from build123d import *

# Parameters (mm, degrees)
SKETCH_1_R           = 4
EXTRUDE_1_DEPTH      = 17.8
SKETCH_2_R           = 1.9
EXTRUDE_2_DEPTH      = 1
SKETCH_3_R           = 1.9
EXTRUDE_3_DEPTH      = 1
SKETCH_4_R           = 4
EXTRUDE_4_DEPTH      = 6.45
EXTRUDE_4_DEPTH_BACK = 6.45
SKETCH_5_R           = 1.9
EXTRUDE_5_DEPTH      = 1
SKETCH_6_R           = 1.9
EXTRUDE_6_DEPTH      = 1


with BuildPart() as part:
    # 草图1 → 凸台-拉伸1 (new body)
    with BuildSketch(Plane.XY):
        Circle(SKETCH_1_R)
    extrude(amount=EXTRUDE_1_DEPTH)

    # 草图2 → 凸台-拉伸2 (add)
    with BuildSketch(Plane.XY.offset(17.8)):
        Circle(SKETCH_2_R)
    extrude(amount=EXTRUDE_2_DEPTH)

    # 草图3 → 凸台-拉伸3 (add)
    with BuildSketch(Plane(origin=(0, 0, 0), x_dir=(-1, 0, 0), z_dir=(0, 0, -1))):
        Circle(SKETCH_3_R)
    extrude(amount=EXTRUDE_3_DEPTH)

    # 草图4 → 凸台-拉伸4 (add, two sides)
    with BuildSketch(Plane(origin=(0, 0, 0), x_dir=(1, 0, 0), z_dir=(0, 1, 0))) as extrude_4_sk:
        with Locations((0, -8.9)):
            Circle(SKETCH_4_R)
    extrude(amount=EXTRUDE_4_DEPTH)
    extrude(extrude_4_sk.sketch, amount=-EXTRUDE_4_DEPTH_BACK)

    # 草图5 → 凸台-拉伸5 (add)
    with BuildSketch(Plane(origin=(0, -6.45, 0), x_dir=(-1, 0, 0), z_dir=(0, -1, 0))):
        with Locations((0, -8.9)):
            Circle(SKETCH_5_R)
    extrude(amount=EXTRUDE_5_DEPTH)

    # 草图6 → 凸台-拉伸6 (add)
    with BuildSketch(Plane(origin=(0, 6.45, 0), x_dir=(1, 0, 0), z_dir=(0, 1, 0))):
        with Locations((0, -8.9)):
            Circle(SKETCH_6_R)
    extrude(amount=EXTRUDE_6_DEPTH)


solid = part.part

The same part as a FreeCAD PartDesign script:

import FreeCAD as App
import Part
import Sketcher
Q = App.Units.Quantity

doc = App.newDocument("Part")
body = doc.addObject("PartDesign::Body", "Body")

# Sketch on XY plane
sketch1 = body.newObject("Sketcher::SketchObject", "Sketch")
sketch1.AttachmentSupport = (doc.getObject("XY_Plane"), [""])
sketch1.MapMode = "FlatFace"
sketch1.addGeometry(Part.Circle(App.Vector(0, 0, 0), App.Vector(0, 0, 1), 4), False)
sketch1.addConstraint([
    Sketcher.Constraint("Coincident", 0, 3, -1, 1),
    Sketcher.Constraint("Diameter", 0, Q("8 mm")),
])
pad1 = body.newObject("PartDesign::Pad", "Pad")
pad1.Profile = sketch1
pad1.Length = 17.8

# Sketch on XY plane
sketch2 = body.newObject("Sketcher::SketchObject", "Sketch001")
sketch2.AttachmentSupport = (doc.getObject("XY_Plane"), [""])
sketch2.MapMode = "FlatFace"
sketch2.AttachmentOffset = App.Placement(App.Vector(0, 0, 17.8), App.Rotation())
sketch2.addGeometry(Part.Circle(App.Vector(0, 0, 0), App.Vector(0, 0, 1), 1.9), False)
sketch2.addConstraint([
    Sketcher.Constraint("Coincident", 0, 3, -1, 1),
    Sketcher.Constraint("Diameter", 0, Q("3.8 mm")),
])
pad2 = body.newObject("PartDesign::Pad", "Pad001")
pad2.Profile = sketch2
pad2.Length = 1

# Sketch on XY plane
sketch3 = body.newObject("Sketcher::SketchObject", "Sketch002")
sketch3.AttachmentSupport = (doc.getObject("XY_Plane"), [""])
sketch3.MapMode = "FlatFace"
sketch3.addGeometry(Part.Circle(App.Vector(0, 0, 0), App.Vector(0, 0, 1), 1.9), False)
sketch3.addConstraint([
    Sketcher.Constraint("Coincident", 0, 3, -1, 1),
    Sketcher.Constraint("Diameter", 0, Q("3.8 mm")),
])
pad3 = body.newObject("PartDesign::Pad", "Pad002")
pad3.Profile = sketch3
pad3.Length = 1
pad3.Reversed = True

# Sketch on XZ plane
sketch4 = body.newObject("Sketcher::SketchObject", "Sketch003")
sketch4.AttachmentSupport = (doc.getObject("XZ_Plane"), [""])
sketch4.MapMode = "FlatFace"
sketch4.addGeometry(Part.Circle(App.Vector(0, 8.9, 0), App.Vector(0, 0, 1), 4), False)
sketch4.addConstraint([
    Sketcher.Constraint("PointOnObject", 0, 3, -2),
    Sketcher.Constraint("Diameter", 0, Q("8 mm")),
    Sketcher.Constraint("DistanceY", -1, 1, 0, 3, Q("8.9 mm")),
])
pad4 = body.newObject("PartDesign::Pad", "Pad003")
pad4.Profile = sketch4
pad4.Type = "TwoLengths"
pad4.Length = 6.45
pad4.Length2 = 6.45
pad4.Reversed = True

# Sketch on XZ plane
sketch5 = body.newObject("Sketcher::SketchObject", "Sketch004")
sketch5.AttachmentSupport = (doc.getObject("XZ_Plane"), [""])
sketch5.MapMode = "FlatFace"
sketch5.AttachmentOffset = App.Placement(App.Vector(0, 0, 6.45), App.Rotation())
sketch5.addGeometry(Part.Circle(App.Vector(0, 8.9, 0), App.Vector(0, 0, 1), 1.9), False)
sketch5.addConstraint([
    Sketcher.Constraint("PointOnObject", 0, 3, -2),
    Sketcher.Constraint("Diameter", 0, Q("3.8 mm")),
    Sketcher.Constraint("DistanceY", -1, 1, 0, 3, Q("8.9 mm")),
])
pad5 = body.newObject("PartDesign::Pad", "Pad004")
pad5.Profile = sketch5
pad5.Length = 1

# Sketch on XZ plane
sketch6 = body.newObject("Sketcher::SketchObject", "Sketch005")
sketch6.AttachmentSupport = (doc.getObject("XZ_Plane"), [""])
sketch6.MapMode = "FlatFace"
sketch6.AttachmentOffset = App.Placement(App.Vector(0, 0, -6.45), App.Rotation())
sketch6.addGeometry(Part.Circle(App.Vector(0, 8.9, 0), App.Vector(0, 0, 1), 1.9), False)
sketch6.addConstraint([
    Sketcher.Constraint("PointOnObject", 0, 3, -2),
    Sketcher.Constraint("Diameter", 0, Q("3.8 mm")),
    Sketcher.Constraint("DistanceY", -1, 1, 0, 3, Q("8.9 mm")),
])
pad6 = body.newObject("PartDesign::Pad", "Pad005")
pad6.Profile = sketch6
pad6.Length = 1
pad6.Reversed = True

doc.recompute()
